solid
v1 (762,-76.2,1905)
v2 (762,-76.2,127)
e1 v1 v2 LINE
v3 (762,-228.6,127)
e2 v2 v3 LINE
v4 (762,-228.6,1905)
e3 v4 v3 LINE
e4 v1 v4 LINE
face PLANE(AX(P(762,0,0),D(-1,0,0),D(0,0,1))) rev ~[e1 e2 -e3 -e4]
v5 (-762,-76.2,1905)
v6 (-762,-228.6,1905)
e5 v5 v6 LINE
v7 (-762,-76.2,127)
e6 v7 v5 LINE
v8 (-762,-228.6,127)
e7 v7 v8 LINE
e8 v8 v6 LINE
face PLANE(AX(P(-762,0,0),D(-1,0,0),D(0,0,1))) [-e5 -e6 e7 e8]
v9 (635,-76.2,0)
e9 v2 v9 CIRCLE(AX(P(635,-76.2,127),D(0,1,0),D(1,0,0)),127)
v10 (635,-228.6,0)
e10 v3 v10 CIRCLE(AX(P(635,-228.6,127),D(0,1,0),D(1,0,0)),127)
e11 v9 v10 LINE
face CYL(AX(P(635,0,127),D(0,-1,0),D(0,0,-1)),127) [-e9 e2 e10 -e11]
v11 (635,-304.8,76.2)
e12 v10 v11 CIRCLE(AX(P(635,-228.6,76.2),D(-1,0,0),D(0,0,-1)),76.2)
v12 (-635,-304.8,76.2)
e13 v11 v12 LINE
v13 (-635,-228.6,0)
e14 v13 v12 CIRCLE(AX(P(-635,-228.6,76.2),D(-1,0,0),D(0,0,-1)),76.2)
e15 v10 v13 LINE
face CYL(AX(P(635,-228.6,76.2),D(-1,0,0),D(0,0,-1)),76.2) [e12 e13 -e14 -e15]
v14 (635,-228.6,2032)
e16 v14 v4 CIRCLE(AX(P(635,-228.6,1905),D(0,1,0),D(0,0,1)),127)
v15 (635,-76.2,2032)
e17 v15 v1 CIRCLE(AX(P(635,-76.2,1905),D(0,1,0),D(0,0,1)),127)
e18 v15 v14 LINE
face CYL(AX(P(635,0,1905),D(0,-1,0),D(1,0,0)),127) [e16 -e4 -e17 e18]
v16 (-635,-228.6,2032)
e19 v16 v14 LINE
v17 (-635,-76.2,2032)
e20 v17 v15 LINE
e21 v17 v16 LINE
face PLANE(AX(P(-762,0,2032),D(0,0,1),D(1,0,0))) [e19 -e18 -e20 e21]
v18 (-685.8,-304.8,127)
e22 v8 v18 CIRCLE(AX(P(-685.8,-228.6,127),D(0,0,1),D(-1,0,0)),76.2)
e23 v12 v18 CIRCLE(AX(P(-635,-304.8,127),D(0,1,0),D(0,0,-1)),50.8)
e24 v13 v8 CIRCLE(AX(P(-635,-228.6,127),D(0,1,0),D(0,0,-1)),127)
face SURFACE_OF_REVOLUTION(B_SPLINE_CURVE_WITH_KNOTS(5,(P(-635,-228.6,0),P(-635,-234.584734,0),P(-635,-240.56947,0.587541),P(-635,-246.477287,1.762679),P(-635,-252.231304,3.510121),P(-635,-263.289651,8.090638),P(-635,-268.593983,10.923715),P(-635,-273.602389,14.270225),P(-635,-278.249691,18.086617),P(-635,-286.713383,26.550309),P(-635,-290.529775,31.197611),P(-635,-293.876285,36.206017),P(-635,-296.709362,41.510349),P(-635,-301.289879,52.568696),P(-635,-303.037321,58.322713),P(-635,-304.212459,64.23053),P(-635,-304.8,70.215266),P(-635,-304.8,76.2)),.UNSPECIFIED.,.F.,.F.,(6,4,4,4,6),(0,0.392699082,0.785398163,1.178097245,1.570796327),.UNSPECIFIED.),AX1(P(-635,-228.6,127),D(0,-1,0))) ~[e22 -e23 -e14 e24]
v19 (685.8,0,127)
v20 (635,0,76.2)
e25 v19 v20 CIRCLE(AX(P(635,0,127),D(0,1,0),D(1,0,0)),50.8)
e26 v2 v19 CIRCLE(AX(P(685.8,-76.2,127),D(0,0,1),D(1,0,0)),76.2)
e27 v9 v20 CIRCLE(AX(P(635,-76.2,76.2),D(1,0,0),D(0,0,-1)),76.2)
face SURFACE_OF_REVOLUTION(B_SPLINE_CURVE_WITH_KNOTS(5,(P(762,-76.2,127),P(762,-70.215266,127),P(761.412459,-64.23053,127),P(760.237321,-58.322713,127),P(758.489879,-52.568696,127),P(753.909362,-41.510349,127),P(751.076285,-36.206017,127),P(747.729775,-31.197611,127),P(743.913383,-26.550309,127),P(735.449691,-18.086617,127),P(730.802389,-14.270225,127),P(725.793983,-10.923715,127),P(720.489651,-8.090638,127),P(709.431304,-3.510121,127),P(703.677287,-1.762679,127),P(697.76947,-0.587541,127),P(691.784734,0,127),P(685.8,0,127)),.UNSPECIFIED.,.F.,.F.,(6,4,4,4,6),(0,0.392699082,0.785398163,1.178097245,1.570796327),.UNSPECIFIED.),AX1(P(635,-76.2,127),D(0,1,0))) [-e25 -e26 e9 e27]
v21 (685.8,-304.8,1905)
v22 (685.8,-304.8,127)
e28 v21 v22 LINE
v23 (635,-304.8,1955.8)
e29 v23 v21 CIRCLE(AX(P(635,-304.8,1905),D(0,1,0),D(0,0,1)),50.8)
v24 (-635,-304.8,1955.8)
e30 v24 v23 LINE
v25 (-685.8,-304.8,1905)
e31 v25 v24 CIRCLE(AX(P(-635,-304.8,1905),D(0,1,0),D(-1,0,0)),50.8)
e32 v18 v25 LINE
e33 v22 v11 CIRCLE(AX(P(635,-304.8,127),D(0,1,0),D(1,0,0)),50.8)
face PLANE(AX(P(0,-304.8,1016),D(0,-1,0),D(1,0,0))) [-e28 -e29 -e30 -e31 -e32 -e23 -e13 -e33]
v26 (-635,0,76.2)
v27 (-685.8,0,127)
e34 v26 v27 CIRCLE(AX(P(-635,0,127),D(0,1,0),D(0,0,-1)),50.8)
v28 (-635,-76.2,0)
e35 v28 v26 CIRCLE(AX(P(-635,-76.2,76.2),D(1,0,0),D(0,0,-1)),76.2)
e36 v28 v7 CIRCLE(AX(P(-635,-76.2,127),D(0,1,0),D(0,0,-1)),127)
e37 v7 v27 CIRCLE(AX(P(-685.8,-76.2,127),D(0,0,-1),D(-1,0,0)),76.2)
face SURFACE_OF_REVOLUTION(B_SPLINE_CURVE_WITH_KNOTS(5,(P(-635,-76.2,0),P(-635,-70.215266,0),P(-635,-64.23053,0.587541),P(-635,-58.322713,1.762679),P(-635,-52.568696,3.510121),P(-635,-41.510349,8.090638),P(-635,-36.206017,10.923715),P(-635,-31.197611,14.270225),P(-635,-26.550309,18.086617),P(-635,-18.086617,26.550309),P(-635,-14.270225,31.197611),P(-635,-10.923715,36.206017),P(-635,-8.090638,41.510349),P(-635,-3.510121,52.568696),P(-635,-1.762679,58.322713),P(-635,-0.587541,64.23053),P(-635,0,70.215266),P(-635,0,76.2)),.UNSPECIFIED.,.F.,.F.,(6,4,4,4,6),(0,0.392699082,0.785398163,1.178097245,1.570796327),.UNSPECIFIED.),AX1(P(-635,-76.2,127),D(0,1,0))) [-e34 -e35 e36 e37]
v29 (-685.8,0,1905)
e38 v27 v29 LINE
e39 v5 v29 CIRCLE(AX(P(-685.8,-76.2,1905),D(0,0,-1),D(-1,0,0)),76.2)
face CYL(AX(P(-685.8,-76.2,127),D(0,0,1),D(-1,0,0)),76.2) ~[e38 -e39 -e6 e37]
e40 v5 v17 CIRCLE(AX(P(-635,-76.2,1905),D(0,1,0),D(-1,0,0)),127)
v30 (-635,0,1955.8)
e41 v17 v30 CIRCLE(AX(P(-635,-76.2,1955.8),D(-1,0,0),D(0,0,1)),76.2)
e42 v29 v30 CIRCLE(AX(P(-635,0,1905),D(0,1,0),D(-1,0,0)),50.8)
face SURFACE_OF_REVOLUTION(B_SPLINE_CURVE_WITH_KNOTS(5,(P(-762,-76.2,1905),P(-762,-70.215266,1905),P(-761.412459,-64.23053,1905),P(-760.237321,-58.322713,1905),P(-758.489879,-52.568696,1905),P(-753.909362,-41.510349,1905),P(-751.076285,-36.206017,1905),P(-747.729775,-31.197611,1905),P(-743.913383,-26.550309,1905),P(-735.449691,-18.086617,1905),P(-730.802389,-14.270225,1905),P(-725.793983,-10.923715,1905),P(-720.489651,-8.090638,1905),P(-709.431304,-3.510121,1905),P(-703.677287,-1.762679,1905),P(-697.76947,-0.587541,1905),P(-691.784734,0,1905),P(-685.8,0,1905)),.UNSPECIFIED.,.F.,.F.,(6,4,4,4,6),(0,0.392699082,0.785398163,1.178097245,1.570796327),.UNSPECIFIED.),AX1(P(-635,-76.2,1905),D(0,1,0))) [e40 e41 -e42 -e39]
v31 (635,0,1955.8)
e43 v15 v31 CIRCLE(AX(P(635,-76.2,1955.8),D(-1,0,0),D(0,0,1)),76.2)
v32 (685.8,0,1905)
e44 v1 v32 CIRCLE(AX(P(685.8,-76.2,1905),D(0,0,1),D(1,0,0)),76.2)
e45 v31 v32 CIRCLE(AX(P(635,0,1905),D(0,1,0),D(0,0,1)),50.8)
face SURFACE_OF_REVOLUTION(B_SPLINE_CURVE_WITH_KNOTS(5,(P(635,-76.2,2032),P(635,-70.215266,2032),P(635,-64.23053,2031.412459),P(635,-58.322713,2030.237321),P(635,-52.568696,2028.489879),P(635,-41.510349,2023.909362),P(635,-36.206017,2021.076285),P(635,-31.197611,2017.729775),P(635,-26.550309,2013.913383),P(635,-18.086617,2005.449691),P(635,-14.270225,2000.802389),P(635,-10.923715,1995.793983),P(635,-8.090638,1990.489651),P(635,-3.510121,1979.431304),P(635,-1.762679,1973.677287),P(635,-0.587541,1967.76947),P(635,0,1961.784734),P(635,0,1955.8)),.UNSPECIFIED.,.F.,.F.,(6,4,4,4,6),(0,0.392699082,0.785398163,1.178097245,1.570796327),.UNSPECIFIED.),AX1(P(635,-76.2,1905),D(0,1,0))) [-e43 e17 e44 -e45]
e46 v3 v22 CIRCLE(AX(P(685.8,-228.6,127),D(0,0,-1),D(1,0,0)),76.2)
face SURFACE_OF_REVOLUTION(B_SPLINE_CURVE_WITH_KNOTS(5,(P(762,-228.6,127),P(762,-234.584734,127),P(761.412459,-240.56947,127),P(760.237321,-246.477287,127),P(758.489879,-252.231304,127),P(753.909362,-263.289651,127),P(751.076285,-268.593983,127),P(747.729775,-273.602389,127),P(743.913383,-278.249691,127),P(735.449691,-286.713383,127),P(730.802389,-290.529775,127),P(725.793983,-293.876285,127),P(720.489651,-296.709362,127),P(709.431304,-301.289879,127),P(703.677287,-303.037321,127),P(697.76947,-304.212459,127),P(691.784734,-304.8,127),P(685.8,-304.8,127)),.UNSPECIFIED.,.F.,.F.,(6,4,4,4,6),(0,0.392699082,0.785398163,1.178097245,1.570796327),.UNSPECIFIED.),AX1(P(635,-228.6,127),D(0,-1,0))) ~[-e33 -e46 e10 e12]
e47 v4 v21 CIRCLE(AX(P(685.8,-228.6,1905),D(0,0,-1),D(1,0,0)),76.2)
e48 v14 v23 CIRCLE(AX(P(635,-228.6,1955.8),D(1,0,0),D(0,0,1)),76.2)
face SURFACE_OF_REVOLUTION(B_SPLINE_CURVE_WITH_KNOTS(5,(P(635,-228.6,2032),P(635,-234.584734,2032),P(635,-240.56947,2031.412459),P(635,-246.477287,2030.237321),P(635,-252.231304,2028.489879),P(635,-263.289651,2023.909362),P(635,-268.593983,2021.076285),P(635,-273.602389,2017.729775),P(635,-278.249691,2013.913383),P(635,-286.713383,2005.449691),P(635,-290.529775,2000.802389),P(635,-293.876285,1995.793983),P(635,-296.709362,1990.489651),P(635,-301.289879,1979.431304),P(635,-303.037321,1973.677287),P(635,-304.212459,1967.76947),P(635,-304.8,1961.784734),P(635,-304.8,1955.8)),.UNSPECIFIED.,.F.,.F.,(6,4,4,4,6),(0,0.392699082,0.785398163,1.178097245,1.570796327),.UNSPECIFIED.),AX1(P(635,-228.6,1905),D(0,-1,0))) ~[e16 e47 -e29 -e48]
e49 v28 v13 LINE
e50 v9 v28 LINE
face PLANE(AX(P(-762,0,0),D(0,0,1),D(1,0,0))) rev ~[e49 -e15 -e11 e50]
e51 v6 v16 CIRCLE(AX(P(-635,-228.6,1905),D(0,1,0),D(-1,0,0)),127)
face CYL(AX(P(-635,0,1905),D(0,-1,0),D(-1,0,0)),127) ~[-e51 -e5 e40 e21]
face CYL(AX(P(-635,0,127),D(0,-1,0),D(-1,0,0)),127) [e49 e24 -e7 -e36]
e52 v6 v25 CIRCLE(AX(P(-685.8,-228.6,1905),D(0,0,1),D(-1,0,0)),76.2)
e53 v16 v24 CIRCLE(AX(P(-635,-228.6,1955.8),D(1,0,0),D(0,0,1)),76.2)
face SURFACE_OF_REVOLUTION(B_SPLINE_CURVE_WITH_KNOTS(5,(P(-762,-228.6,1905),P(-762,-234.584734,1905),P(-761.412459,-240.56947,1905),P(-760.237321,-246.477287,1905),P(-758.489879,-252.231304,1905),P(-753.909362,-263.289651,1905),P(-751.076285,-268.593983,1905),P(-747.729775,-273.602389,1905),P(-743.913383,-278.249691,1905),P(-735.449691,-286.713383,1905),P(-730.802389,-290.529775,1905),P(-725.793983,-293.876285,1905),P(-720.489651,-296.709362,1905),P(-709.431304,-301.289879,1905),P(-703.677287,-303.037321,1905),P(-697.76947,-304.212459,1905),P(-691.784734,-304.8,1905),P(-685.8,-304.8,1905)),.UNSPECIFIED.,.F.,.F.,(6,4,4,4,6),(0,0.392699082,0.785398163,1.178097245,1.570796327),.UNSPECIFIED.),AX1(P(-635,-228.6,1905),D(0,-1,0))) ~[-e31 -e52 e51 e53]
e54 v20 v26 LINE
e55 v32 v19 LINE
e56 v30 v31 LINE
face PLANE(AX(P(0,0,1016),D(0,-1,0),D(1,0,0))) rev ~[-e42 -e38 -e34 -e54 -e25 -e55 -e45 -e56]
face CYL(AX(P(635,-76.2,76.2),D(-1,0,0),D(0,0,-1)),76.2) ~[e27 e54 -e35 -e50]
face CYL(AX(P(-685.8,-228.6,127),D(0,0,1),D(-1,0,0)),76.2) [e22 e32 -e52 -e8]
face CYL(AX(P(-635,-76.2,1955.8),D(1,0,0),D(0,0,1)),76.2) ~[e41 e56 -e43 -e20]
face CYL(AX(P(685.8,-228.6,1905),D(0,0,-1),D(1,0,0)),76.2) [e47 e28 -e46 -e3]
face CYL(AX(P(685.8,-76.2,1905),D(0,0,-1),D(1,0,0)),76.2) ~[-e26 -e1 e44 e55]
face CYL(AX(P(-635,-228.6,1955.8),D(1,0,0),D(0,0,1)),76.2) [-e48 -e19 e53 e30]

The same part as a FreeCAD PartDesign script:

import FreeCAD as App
import Part
import Sketcher

V = App.Vector
Q = App.Units.Quantity


def edges_at(feature, points):
    """Names of the edges that pass closest to the given points."""
    edges = feature.Shape.Edges
    near = lambda p: min(range(len(edges)), key=lambda i: edges[i].distToShape(Part.Vertex(*p))[0])
    return sorted({f"Edge{near(p) + 1}" for p in points})


def add_polygon(sketch, points):
    """Adds a closed chain of lines whose ends are joined by coincident constraints."""
    first, n = sketch.GeometryCount, len(points)
    for a, b in zip(points, points[1:] + points[:1]):
        sketch.addGeometry(Part.LineSegment(App.Vector(*a, 0), App.Vector(*b, 0)), False)
    for i in range(n):
        sketch.addConstraint(Sketcher.Constraint("Coincident", first + i, 2, first + (i + 1) % n, 1))

doc = App.newDocument("Part")
body = doc.addObject("PartDesign::Body", "Body")

# Sketch on XZ plane
sketch1 = body.newObject("Sketcher::SketchObject", "Sketch")
sketch1.AttachmentSupport = (doc.getObject("XZ_Plane"), [""])
sketch1.MapMode = "FlatFace"
add_polygon(sketch1, [(-762, 2032), (-762, 0), (762, 0), (762, 2032)])  # lines 0-3
sketch1.addConstraint(Sketcher.Constraint("Vertical", 0))
sketch1.addConstraint(Sketcher.Constraint("Horizontal", 1))
sketch1.addConstraint(Sketcher.Constraint("Vertical", 2))
sketch1.addConstraint(Sketcher.Constraint("Horizontal", 3))
sketch1.addConstraint(Sketcher.Constraint("Symmetric", 0, 2, 1, 2, -1, 1))
sketch1.addConstraint(Sketcher.Constraint("DistanceX", 1, 1, 1, 2, Q("60 in")))
sketch1.addConstraint(Sketcher.Constraint("DistanceY", 0, 2, 0, 1, Q("80 in")))
pad1 = body.newObject("PartDesign::Pad", "Pad")
pad1.Profile = sketch1
pad1.Length = Q("12 in")
doc.recompute()

fillet = body.newObject("PartDesign::Fillet", "Fillet")
fillet.Base = (pad1, edges_at(pad1, [
    (762, -152.4, 2032),
    (-762, -152.4, 2032),
    (762, -152.4, 0),
    (-762, -152.4, 0),
]))
fillet.Radius = Q("5 in")
doc.recompute()

fillet2 = body.newObject("PartDesign::Fillet", "Fillet001")
fillet2.Base = (fillet, edges_at(fillet, [(-762, -304.8, 1016), (-762, 0, 1016)]))
fillet2.Radius = Q("3 in")

doc.recompute()
